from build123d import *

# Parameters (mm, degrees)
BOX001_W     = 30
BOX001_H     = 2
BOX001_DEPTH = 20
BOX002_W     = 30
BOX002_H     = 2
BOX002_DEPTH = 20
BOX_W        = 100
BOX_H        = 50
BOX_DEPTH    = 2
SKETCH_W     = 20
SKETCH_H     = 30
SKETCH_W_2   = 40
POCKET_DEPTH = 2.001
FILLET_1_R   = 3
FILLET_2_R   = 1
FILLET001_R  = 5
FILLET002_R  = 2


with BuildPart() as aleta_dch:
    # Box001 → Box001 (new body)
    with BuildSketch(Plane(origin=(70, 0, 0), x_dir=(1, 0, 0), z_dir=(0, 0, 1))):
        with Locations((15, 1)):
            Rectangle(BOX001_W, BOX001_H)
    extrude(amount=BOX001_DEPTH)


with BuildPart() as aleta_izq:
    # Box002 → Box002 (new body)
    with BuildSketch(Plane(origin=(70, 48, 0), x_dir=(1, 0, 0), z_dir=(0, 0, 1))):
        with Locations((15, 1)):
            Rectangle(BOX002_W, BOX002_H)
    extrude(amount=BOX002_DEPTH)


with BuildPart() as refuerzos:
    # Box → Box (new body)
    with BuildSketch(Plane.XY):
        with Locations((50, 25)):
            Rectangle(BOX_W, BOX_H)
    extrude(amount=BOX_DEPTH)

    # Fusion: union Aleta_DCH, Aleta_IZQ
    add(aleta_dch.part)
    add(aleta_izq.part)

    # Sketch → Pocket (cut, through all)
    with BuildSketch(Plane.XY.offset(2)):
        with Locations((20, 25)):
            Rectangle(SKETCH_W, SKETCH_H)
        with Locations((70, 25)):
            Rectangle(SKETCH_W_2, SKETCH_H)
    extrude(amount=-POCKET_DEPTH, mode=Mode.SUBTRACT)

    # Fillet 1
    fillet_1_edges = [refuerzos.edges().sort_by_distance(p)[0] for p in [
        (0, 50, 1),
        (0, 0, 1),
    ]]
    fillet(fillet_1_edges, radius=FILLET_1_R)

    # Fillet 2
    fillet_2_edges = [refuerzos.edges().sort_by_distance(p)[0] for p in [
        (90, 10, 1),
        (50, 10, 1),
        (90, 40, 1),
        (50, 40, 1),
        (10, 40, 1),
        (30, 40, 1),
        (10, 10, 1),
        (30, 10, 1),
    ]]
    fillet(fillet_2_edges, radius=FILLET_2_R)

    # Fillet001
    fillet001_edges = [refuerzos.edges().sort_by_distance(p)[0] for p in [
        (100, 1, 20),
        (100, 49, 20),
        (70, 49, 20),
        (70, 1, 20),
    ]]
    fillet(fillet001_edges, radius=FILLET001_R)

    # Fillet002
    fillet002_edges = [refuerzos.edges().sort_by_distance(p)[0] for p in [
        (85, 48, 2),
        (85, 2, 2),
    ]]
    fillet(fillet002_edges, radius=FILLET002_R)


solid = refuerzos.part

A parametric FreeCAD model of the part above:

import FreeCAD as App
import Part
import Sketcher
from FreeCAD import Vector
Q = App.Units.Quantity


def edges_at(feature, points):
    """Names of the edges that pass closest to the given points."""
    edges = feature.Shape.Edges
    near = lambda p: min(range(len(edges)), key=lambda i: edges[i].distToShape(Part.Vertex(*p))[0])
    return sorted({f"Edge{near(p) + 1}" for p in points})


def add_polygon(sketch, points):
    """Adds a closed chain of lines whose ends are joined by coincident constraints."""
    first, n = sketch.GeometryCount, len(points)
    for a, b in zip(points, points[1:] + points[:1]):
        sketch.addGeometry(Part.LineSegment(App.Vector(*a, 0), App.Vector(*b, 0)), False)
    for i in range(n):
        sketch.addConstraint(Sketcher.Constraint("Coincident", first + i, 2, first + (i + 1) % n, 1))

doc = App.newDocument("Part")
body = doc.addObject("PartDesign::Body", "Body")

sketch1 = doc.addObject("Sketcher::SketchObject", "Sketch")
body.addObject(sketch1)
sketch1.AttachmentSupport = (doc.XY_Plane, [""])
sketch1.MapMode = "FlatFace"
add_polygon(sketch1, [(70, 2), (70, 0), (100, 0), (100, 2)])
sketch1.addConstraint([
    Sketcher.Constraint("Vertical", 0),
    Sketcher.Constraint("Horizontal", 1),
    Sketcher.Constraint("Vertical", 2),
    Sketcher.Constraint("Horizontal", 3),
    Sketcher.Constraint("PointOnObject", 0, 2, -1),
    Sketcher.Constraint("DistanceX", 1, 1, 1, 2, Q("30 mm")),
    Sketcher.Constraint("DistanceY", 0, 2, 0, 1, Q("2 mm")),
    Sketcher.Constraint("DistanceX", -1, 1, 0, 2, Q("70 mm")),
])
pad1 = doc.addObject("PartDesign::Pad", "Pad")
body.addObject(pad1)
pad1.Profile = sketch1
pad1.Length = 20
body2 = doc.addObject("PartDesign::Body", "Body001")

sketch2 = doc.addObject("Sketcher::SketchObject", "Sketch001")
body2.addObject(sketch2)
sketch2.AttachmentSupport = (doc.getObject("XY_Plane001"), [""])
sketch2.MapMode = "FlatFace"
add_polygon(sketch2, [(70, 50), (70, 48), (100, 48), (100, 50)])
sketch2.addConstraint([
    Sketcher.Constraint("Vertical", 0),
    Sketcher.Constraint("Horizontal", 1),
    Sketcher.Constraint("Vertical", 2),
    Sketcher.Constraint("Horizontal", 3),
    Sketcher.Constraint("DistanceX", 1, 1, 1, 2, Q("30 mm")),
    Sketcher.Constraint("DistanceY", 0, 2, 0, 1, Q("2 mm")),
    Sketcher.Constraint("DistanceX", -1, 1, 0, 2, Q("70 mm")),
    Sketcher.Constraint("DistanceY", -1, 1, 0, 2, Q("48 mm")),
])
pad2 = doc.addObject("PartDesign::Pad", "Pad001")
body2.addObject(pad2)
pad2.Profile = sketch2
pad2.Length = 20
body3 = doc.addObject("PartDesign::Body", "Body002")

sketch3 = doc.addObject("Sketcher::SketchObject", "Sketch002")
body3.addObject(sketch3)
sketch3.AttachmentSupport = (doc.getObject("XY_Plane002"), [""])
sketch3.MapMode = "FlatFace"
add_polygon(sketch3, [(0, 50), (0, 0), (100, 0), (100, 50)])
sketch3.addConstraint([
    Sketcher.Constraint("Vertical", 0),
    Sketcher.Constraint("Horizontal", 1),
    Sketcher.Constraint("Vertical", 2),
    Sketcher.Constraint("Horizontal", 3),
    Sketcher.Constraint("Coincident", 0, 2, -1, 1),
    Sketcher.Constraint("DistanceX", 1, 1, 1, 2, Q("100 mm")),
    Sketcher.Constraint("DistanceY", 0, 2, 0, 1, Q("50 mm")),
])
pad3 = doc.addObject("PartDesign::Pad", "Pad002")
body3.addObject(pad3)
pad3.Profile = sketch3
pad3.Length = 2
doc.recompute()

boolean = doc.addObject("PartDesign::Boolean", "Boolean")
body3.addObject(boolean)
boolean.Type = "Fuse"
boolean.addObjects([body])
doc.recompute()

boolean2 = doc.addObject("PartDesign::Boolean", "Boolean001")
body3.addObject(boolean2)
boolean2.Type = "Fuse"
boolean2.addObjects([body2])

sketch4 = doc.addObject("Sketcher::SketchObject", "Sketch003")
body3.addObject(sketch4)
sketch4.AttachmentSupport = (doc.getObject("XY_Plane002"), [""])
sketch4.MapMode = "FlatFace"
sketch4.AttachmentOffset = App.Placement(Vector(0, 0, 2), App.Rotation())
add_polygon(sketch4, [(10, 40), (10, 10), (30, 10), (30, 40)])
add_polygon(sketch4, [(50, 40), (50, 10), (90, 10), (90, 40)])
sketch4.addConstraint([
    Sketcher.Constraint("Vertical", 0),
    Sketcher.Constraint("Horizontal", 1),
    Sketcher.Constraint("Vertical", 2),
    Sketcher.Constraint("Horizontal", 3),
    Sketcher.Constraint("Vertical", 4),
    Sketcher.Constraint("Horizontal", 5),
    Sketcher.Constraint("Vertical", 6),
    Sketcher.Constraint("Horizontal", 7),
    Sketcher.Constraint("Horizontal", 1, 2, 4, 2),
    Sketcher.Constraint("Horizontal", 3, 2, 6, 2),
    Sketcher.Constraint("DistanceX", 1, 1, 1, 2, Q("20 mm")),
    Sketcher.Constraint("DistanceX", 5, 1, 5, 2, Q("40 mm")),
    Sketcher.Constraint("DistanceY", 0, 2, 0, 1, Q("30 mm")),
    Sketcher.Constraint("DistanceX", -1, 1, 0, 2, Q("10 mm")),
    Sketcher.Constraint("DistanceY", -1, 1, 0, 2, Q("10 mm")),
    Sketcher.Constraint("DistanceX", -1, 1, 4, 2, Q("50 mm")),
])
pocket1 = doc.addObject("PartDesign::Pocket", "Pocket")
body3.addObject(pocket1)
pocket1.Profile = sketch4
pocket1.Type = "ThroughAll"
doc.recompute()

fillet = doc.addObject("PartDesign::Fillet", "Fillet")
body3.addObject(fillet)
fillet.Base = (pocket1, edges_at(pocket1, [(0, 50, 1), (0, 0, 1)]))
fillet.Radius = 3
doc.recompute()

fillet2 = doc.addObject("PartDesign::Fillet", "Fillet001")
body3.addObject(fillet2)
fillet2.Base = (fillet, edges_at(fillet, [
    (90, 10, 1),
    (50, 10, 1),
    (90, 40, 1),
    (50, 40, 1),
    (10, 40, 1),
    (30, 40, 1),
    (10, 10, 1),
    (30, 10, 1),
]))
fillet2.Radius = 1
doc.recompute()

fillet3 = doc.addObject("PartDesign::Fillet", "Fillet002")
body3.addObject(fillet3)
fillet3.Base = (fillet2, edges_at(fillet2, [
    (100, 1, 20),
    (100, 49, 20),
    (70, 49, 20),
    (70, 1, 20),
]))
fillet3.Radius = 5
doc.recompute()

fillet4 = doc.addObject("PartDesign::Fillet", "Fillet003")
body3.addObject(fillet4)
fillet4.Base = (fillet3, edges_at(fillet3, [(85, 48, 2), (85, 2, 2)]))
fillet4.Radius = 2

doc.recompute()
